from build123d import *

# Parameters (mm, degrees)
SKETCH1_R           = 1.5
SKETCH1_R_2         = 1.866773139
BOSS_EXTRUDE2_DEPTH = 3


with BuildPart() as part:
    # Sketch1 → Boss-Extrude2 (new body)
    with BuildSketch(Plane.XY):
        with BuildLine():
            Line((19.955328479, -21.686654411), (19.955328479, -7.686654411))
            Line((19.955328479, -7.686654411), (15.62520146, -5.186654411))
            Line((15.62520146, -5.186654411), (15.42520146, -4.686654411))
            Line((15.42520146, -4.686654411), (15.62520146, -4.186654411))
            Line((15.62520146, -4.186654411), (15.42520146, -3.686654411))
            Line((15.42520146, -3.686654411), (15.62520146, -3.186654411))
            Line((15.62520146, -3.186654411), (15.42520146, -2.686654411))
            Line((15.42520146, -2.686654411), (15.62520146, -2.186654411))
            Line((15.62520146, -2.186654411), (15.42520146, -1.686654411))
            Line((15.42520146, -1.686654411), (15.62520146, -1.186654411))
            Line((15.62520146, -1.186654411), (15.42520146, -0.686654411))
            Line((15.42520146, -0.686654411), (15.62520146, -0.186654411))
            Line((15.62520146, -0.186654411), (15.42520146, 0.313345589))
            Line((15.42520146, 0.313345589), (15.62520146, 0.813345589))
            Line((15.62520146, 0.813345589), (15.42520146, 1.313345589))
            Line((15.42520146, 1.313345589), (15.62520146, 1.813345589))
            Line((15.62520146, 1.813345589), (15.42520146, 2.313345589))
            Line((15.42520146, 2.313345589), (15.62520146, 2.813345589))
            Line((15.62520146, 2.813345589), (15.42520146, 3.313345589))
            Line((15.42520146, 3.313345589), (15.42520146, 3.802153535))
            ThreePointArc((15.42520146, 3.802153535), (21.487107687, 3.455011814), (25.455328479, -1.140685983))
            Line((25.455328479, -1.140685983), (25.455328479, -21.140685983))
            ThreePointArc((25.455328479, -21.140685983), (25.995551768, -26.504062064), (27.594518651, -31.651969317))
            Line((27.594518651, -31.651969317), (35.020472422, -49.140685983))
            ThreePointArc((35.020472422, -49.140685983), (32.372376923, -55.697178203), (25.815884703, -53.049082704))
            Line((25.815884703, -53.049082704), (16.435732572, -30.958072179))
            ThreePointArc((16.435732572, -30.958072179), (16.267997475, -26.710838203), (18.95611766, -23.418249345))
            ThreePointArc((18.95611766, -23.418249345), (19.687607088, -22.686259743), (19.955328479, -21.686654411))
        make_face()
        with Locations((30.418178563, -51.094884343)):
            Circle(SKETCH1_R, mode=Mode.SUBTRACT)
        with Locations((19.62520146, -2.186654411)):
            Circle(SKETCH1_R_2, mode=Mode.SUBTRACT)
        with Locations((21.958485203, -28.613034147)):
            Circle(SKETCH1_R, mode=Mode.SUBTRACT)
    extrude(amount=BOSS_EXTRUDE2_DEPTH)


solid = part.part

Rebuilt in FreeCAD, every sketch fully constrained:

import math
import FreeCAD as App
import Part
import Sketcher
from FreeCAD import Vector
Q = App.Units.Quantity

doc = App.newDocument("Part")
body = doc.addObject("PartDesign::Body", "Body")

sketch1 = body.newObject("Sketcher::SketchObject", "Sketch")
sketch1.AttachmentSupport = (doc.getObject("XY_Plane"), [""])
sketch1.MapMode = "FlatFace"
sketch1.addGeometry([
    Part.LineSegment(Vector(19.96, -7.69, 0), Vector(19.96, -21.69, 0)),
    Part.ArcOfCircle(Part.Circle(Vector(17.96, -21.69, 0), Vector(0, 0, 1), 2), math.radians(-60), math.radians(0)),
    Part.ArcOfCircle(Part.Circle(Vector(21.96, -28.61, 0), Vector(0, 0, 1), 6), math.radians(120), math.radians(203)),
    Part.LineSegment(Vector(16.44, -30.96, 0), Vector(25.82, -53.05, 0)),
    Part.ArcOfCircle(Part.Circle(Vector(30.42, -51.09, 0), Vector(0, 0, 1), 5), math.radians(-157), math.radians(23)),
    Part.LineSegment(Vector(35.02, -49.14, 0), Vector(27.59, -31.65, 0)),
    Part.ArcOfCircle(Part.Circle(Vector(52.35, -21.14, 0), Vector(0, 0, 1), 26.89), math.radians(180), math.radians(203)),
    Part.LineSegment(Vector(25.46, -21.14, 0), Vector(25.46, -1.14, 0)),
    Part.ArcOfCircle(Part.Circle(Vector(18.05, -3.53, 0), Vector(0, 0, 1), 7.78), math.radians(18), math.radians(110)),
    Part.LineSegment(Vector(15.43, 3.8, 0), Vector(15.43, 3.31, 0)),
    Part.LineSegment(Vector(15.43, 3.31, 0), Vector(15.63, 2.81, 0)),
    Part.LineSegment(Vector(15.63, 2.81, 0), Vector(15.43, 2.31, 0)),
    Part.LineSegment(Vector(15.43, 2.31, 0), Vector(15.63, 1.81, 0)),
    Part.LineSegment(Vector(15.63, 1.81, 0), Vector(15.43, 1.31, 0)),
    Part.LineSegment(Vector(15.43, 1.31, 0), Vector(15.63, 0.81, 0)),
    Part.LineSegment(Vector(15.63, 0.81, 0), Vector(15.43, 0.31, 0)),
    Part.LineSegment(Vector(15.43, 0.31, 0), Vector(15.63, -0.19, 0)),
    Part.LineSegment(Vector(15.63, -0.19, 0), Vector(15.43, -0.69, 0)),
    Part.LineSegment(Vector(15.43, -0.69, 0), Vector(15.63, -1.19, 0)),
    Part.LineSegment(Vector(15.63, -1.19, 0), Vector(15.43, -1.69, 0)),
    Part.LineSegment(Vector(15.43, -1.69, 0), Vector(15.63, -2.19, 0)),
    Part.LineSegment(Vector(15.63, -2.19, 0), Vector(15.43, -2.69, 0)),
    Part.LineSegment(Vector(15.43, -2.69, 0), Vector(15.63, -3.19, 0)),
    Part.LineSegment(Vector(15.63, -3.19, 0), Vector(15.43, -3.69, 0)),
    Part.LineSegment(Vector(15.43, -3.69, 0), Vector(15.63, -4.19, 0)),
    Part.LineSegment(Vector(15.63, -4.19, 0), Vector(15.43, -4.69, 0)),
    Part.LineSegment(Vector(15.43, -4.69, 0), Vector(15.63, -5.19, 0)),
    Part.LineSegment(Vector(15.63, -5.19, 0), Vector(19.96, -7.69, 0)),
    Part.Circle(Vector(30.42, -51.09, 0), Vector(0, 0, 1), 1.5),
    Part.Circle(Vector(21.96, -28.61, 0), Vector(0, 0, 1), 1.5),
    Part.Circle(Vector(19.63, -2.19, 0), Vector(0, 0, 1), 1.87),
], False)
sketch1.addConstraint([
    Sketcher.Constraint("Tangent", 0, 2, 1, 2),
    Sketcher.Constraint("Tangent", 1, 1, 2, 1),
    Sketcher.Constraint("Tangent", 2, 2, 3, 1),
    Sketcher.Constraint("Tangent", 3, 2, 4, 1),
    Sketcher.Constraint("Tangent", 4, 2, 5, 1),
    Sketcher.Constraint("Tangent", 5, 2, 6, 2),
    Sketcher.Constraint("Tangent", 6, 1, 7, 1),
    Sketcher.Constraint("Coincident", 7, 2, 8, 1),
    Sketcher.Constraint("Coincident", 8, 2, 9, 1),
    Sketcher.Constraint("Coincident", 9, 2, 10, 1),
    Sketcher.Constraint("Coincident", 10, 2, 11, 1),
    Sketcher.Constraint("Coincident", 11, 2, 12, 1),
    Sketcher.Constraint("Coincident", 12, 2, 13, 1),
    Sketcher.Constraint("Coincident", 13, 2, 14, 1),
    Sketcher.Constraint("Coincident", 14, 2, 15, 1),
    Sketcher.Constraint("Coincident", 15, 2, 16, 1),
    Sketcher.Constraint("Coincident", 16, 2, 17, 1),
    Sketcher.Constraint("Coincident", 17, 2, 18, 1),
    Sketcher.Constraint("Coincident", 18, 2, 19, 1),
    Sketcher.Constraint("Coincident", 19, 2, 20, 1),
    Sketcher.Constraint("Coincident", 20, 2, 21, 1),
    Sketcher.Constraint("Coincident", 21, 2, 22, 1),
    Sketcher.Constraint("Coincident", 22, 2, 23, 1),
    Sketcher.Constraint("Coincident", 23, 2, 24, 1),
    Sketcher.Constraint("Coincident", 24, 2, 25, 1),
    Sketcher.Constraint("Coincident", 25, 2, 26, 1),
    Sketcher.Constraint("Coincident", 26, 2, 27, 1),
    Sketcher.Constraint("Coincident", 27, 2, 0, 1),
    Sketcher.Constraint("Vertical", 0),
    Sketcher.Constraint("Vertical", 7),
    Sketcher.Constraint("Vertical", 9),
    Sketcher.Constraint("Coincident", 28, 3, 4, 3),
    Sketcher.Constraint("Coincident", 29, 3, 2, 3),
    Sketcher.Constraint("Equal", 28, 29),
    Sketcher.Constraint("Parallel", 3, 5),
    Sketcher.Constraint("Parallel", 10, 12),
    Sketcher.Constraint("Parallel", 11, 13),
    Sketcher.Constraint("Parallel", 12, 14),
    Sketcher.Constraint("Parallel", 13, 15),
    Sketcher.Constraint("Parallel", 14, 16),
    Sketcher.Constraint("Parallel", 15, 17),
    Sketcher.Constraint("Parallel", 16, 18),
    Sketcher.Constraint("Parallel", 17, 19),
    Sketcher.Constraint("Parallel", 18, 20),
    Sketcher.Constraint("Parallel", 19, 21),
    Sketcher.Constraint("Parallel", 20, 22),
    Sketcher.Constraint("Parallel", 21, 23),
    Sketcher.Constraint("Parallel", 22, 24),
    Sketcher.Constraint("Parallel", 23, 25),
    Sketcher.Constraint("Parallel", 24, 26),
    Sketcher.Constraint("Horizontal", 30, 3, 20, 2),
    Sketcher.Constraint("Vertical", 9, 2, 11, 2),
    Sketcher.Constraint("Vertical", 10, 2, 12, 2),
    Sketcher.Constraint("Vertical", 11, 2, 13, 2),
    Sketcher.Constraint("Vertical", 12, 2, 14, 2),
    Sketcher.Constraint("Vertical", 13, 2, 15, 2),
    Sketcher.Constraint("Vertical", 14, 2, 16, 2),
    Sketcher.Constraint("Vertical", 15, 2, 17, 2),
    Sketcher.Constraint("Vertical", 16, 2, 18, 2),
    Sketcher.Constraint("Vertical", 17, 2, 19, 2),
    Sketcher.Constraint("Vertical", 18, 2, 20, 2),
    Sketcher.Constraint("Vertical", 19, 2, 21, 2),
    Sketcher.Constraint("Vertical", 20, 2, 22, 2),
    Sketcher.Constraint("Vertical", 21, 2, 23, 2),
    Sketcher.Constraint("Vertical", 22, 2, 24, 2),
    Sketcher.Constraint("Vertical", 23, 2, 25, 2),
    Sketcher.Constraint("Vertical", 24, 2, 26, 2),
    Sketcher.Constraint("Equal", 10, 11),
    Sketcher.Constraint("Diameter", 28, Q("3 mm")),
    Sketcher.Constraint("Radius", 1, Q("2 mm")),
    Sketcher.Constraint("Radius", 2, Q("6 mm")),
    Sketcher.Constraint("Radius", 4, Q("5 mm")),
    Sketcher.Constraint("DistanceY", 0, 2, 0, 1, Q("14 mm")),
    Sketcher.Constraint("DistanceY", 7, 1, 7, 2, Q("20 mm")),
    Sketcher.Constraint("Angle", 27, Q("-30 deg")),
    Sketcher.Constraint("Distance", 3, Q("24 mm")),
    Sketcher.Constraint("Distance", 5, Q("19 mm")),
    Sketcher.Constraint("Distance", 27, Q("5 mm")),
    Sketcher.Constraint("DistanceY", 1, 3, 9, 2, Q("25 mm")),
    Sketcher.Constraint("DistanceX", 10, 2, 30, 3, Q("4 mm")),
    Sketcher.Constraint("DistanceX", 0, 2, 6, 1, Q("5.5 mm")),
    Sketcher.Constraint("DistanceX", 8, 2, 30, 3, Q("4.2 mm")),
    Sketcher.Constraint("Radius", 8, Q("7.78376 mm")),
    Sketcher.Constraint("Diameter", 30, Q("3.733546 mm")),
    Sketcher.Constraint("Radius", 6, Q("26.894105 mm")),
    Sketcher.Constraint("DistanceX", -1, 1, 30, 3, Q("19.625201 mm")),
    Sketcher.Constraint("DistanceY", 4, 3, 6, 3, Q("29.954198 mm")),
    Sketcher.Constraint("DistanceY", 9, 2, 9, 1, Q("0.488808 mm")),
    Sketcher.Constraint("DistanceY", 8, 3, -1, 1, Q("3.526988 mm")),
])
pad1 = body.newObject("PartDesign::Pad", "Pad")
pad1.Profile = sketch1
pad1.Length = 3

doc.recompute()
